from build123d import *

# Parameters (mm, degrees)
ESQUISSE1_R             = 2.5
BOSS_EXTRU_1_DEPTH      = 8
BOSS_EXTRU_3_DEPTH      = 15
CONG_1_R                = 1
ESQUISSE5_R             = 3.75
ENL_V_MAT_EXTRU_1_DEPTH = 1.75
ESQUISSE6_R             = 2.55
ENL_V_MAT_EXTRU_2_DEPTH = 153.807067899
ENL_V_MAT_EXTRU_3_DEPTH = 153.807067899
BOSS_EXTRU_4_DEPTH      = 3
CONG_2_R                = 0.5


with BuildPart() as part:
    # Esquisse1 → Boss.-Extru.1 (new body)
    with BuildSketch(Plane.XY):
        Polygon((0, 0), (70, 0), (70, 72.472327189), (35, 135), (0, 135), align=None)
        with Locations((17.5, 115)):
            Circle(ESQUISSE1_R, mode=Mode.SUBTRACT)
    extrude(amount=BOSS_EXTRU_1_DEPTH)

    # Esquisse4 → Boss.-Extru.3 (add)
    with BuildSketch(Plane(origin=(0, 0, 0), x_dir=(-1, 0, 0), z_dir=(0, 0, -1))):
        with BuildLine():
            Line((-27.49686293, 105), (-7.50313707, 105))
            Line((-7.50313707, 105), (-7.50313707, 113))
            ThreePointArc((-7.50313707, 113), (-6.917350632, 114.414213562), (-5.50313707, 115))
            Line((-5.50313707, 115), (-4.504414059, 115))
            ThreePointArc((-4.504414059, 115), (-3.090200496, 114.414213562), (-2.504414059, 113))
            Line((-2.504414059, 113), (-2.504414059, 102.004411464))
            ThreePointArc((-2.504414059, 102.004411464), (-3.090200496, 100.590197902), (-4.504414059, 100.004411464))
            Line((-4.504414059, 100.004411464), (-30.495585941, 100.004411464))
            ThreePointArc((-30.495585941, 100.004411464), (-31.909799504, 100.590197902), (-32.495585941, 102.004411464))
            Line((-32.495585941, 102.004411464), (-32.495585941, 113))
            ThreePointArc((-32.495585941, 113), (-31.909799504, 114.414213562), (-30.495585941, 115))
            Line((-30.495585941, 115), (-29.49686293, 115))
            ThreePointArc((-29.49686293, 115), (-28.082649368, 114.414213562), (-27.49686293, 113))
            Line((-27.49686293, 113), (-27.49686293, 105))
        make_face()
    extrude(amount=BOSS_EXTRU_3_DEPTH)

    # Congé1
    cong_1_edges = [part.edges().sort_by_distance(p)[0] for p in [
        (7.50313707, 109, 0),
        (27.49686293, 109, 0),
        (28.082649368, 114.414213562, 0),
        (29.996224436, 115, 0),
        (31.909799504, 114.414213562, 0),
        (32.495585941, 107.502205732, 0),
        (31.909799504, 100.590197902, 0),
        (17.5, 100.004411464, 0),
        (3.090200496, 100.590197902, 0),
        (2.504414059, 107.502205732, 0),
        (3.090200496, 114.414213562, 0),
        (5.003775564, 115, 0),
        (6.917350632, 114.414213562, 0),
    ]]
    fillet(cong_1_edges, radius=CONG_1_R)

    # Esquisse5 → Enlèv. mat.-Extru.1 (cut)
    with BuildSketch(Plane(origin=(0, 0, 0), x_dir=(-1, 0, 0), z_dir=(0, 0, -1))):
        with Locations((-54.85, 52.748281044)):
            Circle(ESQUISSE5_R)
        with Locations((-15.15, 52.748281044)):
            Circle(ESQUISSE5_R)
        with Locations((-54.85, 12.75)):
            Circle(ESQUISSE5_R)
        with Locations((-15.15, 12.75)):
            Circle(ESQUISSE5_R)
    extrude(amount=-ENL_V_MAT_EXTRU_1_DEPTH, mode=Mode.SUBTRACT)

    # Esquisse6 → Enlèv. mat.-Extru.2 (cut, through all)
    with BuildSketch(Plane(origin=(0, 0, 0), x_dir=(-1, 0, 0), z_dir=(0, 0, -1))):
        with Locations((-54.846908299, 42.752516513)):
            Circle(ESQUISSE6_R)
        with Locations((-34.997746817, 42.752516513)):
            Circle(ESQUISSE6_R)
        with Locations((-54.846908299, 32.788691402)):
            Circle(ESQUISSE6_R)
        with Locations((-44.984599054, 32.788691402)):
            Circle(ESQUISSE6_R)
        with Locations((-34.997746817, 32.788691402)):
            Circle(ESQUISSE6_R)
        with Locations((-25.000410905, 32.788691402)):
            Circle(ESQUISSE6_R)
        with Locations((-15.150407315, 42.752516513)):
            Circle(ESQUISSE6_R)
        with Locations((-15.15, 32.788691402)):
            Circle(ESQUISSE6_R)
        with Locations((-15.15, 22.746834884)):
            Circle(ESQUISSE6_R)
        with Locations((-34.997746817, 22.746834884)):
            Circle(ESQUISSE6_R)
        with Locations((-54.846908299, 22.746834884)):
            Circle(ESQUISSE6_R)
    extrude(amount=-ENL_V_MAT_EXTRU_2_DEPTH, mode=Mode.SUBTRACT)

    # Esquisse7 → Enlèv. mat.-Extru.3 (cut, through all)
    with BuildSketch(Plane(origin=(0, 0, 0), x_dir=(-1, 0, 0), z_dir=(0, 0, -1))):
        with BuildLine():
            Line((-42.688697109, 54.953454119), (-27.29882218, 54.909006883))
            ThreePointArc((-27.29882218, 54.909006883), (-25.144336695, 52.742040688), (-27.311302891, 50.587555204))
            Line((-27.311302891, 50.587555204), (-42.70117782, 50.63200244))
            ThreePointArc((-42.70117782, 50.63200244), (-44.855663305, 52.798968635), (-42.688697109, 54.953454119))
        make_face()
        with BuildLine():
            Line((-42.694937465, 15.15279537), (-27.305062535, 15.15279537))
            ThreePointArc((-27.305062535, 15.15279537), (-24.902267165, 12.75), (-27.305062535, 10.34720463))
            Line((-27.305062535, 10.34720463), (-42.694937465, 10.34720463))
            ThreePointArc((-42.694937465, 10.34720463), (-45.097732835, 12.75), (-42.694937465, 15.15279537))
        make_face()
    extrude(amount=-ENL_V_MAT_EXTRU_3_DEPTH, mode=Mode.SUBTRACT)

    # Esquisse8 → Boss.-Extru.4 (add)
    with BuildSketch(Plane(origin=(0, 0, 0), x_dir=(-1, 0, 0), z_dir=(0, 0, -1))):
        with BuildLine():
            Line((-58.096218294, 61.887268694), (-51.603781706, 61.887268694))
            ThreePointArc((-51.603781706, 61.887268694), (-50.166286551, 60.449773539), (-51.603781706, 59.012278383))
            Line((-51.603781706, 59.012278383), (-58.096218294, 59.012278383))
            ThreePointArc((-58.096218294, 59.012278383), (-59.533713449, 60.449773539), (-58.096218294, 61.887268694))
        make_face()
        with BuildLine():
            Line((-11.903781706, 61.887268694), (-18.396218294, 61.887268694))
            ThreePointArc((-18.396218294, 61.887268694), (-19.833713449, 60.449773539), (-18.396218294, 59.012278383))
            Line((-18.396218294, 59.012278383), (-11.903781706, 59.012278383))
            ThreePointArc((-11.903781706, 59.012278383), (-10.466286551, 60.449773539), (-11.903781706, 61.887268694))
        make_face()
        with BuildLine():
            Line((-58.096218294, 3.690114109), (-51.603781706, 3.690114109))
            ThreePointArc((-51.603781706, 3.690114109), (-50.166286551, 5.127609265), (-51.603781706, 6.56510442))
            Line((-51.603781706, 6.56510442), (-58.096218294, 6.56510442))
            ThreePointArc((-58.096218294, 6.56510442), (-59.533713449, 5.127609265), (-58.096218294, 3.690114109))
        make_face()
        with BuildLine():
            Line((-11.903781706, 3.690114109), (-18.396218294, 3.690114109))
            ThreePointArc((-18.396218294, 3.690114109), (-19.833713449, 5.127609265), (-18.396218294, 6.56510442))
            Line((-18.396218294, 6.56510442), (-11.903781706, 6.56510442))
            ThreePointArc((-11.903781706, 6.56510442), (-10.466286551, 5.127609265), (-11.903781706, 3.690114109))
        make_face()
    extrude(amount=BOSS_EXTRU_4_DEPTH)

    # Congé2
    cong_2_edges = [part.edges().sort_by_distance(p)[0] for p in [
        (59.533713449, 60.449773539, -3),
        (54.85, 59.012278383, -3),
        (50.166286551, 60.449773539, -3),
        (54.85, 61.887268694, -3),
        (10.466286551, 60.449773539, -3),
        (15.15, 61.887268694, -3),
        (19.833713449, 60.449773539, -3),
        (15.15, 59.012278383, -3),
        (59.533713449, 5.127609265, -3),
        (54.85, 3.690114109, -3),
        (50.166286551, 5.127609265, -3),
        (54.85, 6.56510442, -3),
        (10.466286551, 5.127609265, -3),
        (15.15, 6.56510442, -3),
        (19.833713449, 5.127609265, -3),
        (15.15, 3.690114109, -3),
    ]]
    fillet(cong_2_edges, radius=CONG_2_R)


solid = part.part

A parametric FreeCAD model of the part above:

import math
import FreeCAD as App
import Part
import Sketcher
Q = App.Units.Quantity


def edges_at(feature, points):
    """Names of the edges that pass closest to the given points."""
    edges = feature.Shape.Edges
    near = lambda p: min(range(len(edges)), key=lambda i: edges[i].distToShape(Part.Vertex(*p))[0])
    return sorted({f"Edge{near(p) + 1}" for p in points})


def add_polygon(sketch, points):
    """Adds a closed chain of lines whose ends are joined by coincident constraints."""
    first, n = sketch.GeometryCount, len(points)
    for a, b in zip(points, points[1:] + points[:1]):
        sketch.addGeometry(Part.LineSegment(App.Vector(*a, 0), App.Vector(*b, 0)), False)
    for i in range(n):
        sketch.addConstraint(Sketcher.Constraint("Coincident", first + i, 2, first + (i + 1) % n, 1))

doc = App.newDocument("Part")
body = doc.addObject("PartDesign::Body", "Body")

# Sketch on XY plane
sketch1 = body.newObject("Sketcher::SketchObject", "Sketch")
sketch1.AttachmentSupport = (doc.getObject("XY_Plane"), [""])
sketch1.MapMode = "FlatFace"
add_polygon(sketch1, [(0, 0), (70, 0), (70, 72.472327), (35, 135), (0, 135)])  # lines 0-4
sketch1.addGeometry(Part.Circle(App.Vector(17.5, 115, 0), App.Vector(0, 0, 1), 2.5), False)  # 5
sketch1.addConstraint([
    Sketcher.Constraint("Horizontal", 0),
    Sketcher.Constraint("Vertical", 1),
    Sketcher.Constraint("Horizontal", 3),
    Sketcher.Constraint("Vertical", 4),
    Sketcher.Constraint("Coincident", 4, 2, -1, 1),
    Sketcher.Constraint("Diameter", 5, Q("5 mm")),
    Sketcher.Constraint("DistanceX", 0, 1, 0, 2, Q("70 mm")),
    Sketcher.Constraint("DistanceX", 3, 2, 3, 1, Q("35 mm")),
    Sketcher.Constraint("DistanceY", 4, 2, 4, 1, Q("135 mm")),
    Sketcher.Constraint("DistanceY", -1, 1, 5, 3, Q("115 mm")),
    Sketcher.Constraint("DistanceX", -1, 1, 5, 3, Q("17.5 mm")),
    Sketcher.Constraint("Distance", 2, Q("71.65689 mm")),
])
pad1 = body.newObject("PartDesign::Pad", "Pad")
pad1.Profile = sketch1
pad1.Length = 8

# Sketch on XY plane
sketch2 = body.newObject("Sketcher::SketchObject", "Sketch001")
sketch2.AttachmentSupport = (doc.getObject("XY_Plane"), [""])
sketch2.MapMode = "FlatFace"
sketch2.addGeometry([
    Part.LineSegment(App.Vector(7.503137, 105, 0), App.Vector(27.496863, 105, 0)),  # 0
    Part.LineSegment(App.Vector(27.496863, 105, 0), App.Vector(27.496863, 113, 0)),  # 1
    Part.ArcOfCircle(Part.Circle(App.Vector(29.496863, 113, 0), App.Vector(0, 0, 1), 2), math.radians(90), math.radians(180)),  # 2
    Part.LineSegment(App.Vector(29.496863, 115, 0), App.Vector(30.495586, 115, 0)),  # 3
    Part.ArcOfCircle(Part.Circle(App.Vector(30.495586, 113, 0), App.Vector(0, 0, 1), 2), math.radians(0), math.radians(90)),  # 4
    Part.LineSegment(App.Vector(32.495586, 113, 0), App.Vector(32.495586, 102.004411, 0)),  # 5
    Part.ArcOfCircle(Part.Circle(App.Vector(30.495586, 102.004411, 0), App.Vector(0, 0, 1), 2), math.radians(-90), math.radians(0)),  # 6
    Part.LineSegment(App.Vector(30.495586, 100.004411, 0), App.Vector(4.504414, 100.004411, 0)),  # 7
    Part.ArcOfCircle(Part.Circle(App.Vector(4.504414, 102.004411, 0), App.Vector(0, 0, 1), 2), math.radians(180), math.radians(270)),  # 8
    Part.LineSegment(App.Vector(2.504414, 102.004411, 0), App.Vector(2.504414, 113, 0)),  # 9
    Part.ArcOfCircle(Part.Circle(App.Vector(4.504414, 113, 0), App.Vector(0, 0, 1), 2), math.radians(90), math.radians(180)),  # 10
    Part.LineSegment(App.Vector(4.504414, 115, 0), App.Vector(5.503137, 115, 0)),  # 11
    Part.ArcOfCircle(Part.Circle(App.Vector(5.503137, 113, 0), App.Vector(0, 0, 1), 2), math.radians(0), math.radians(90)),  # 12
    Part.LineSegment(App.Vector(7.503137, 113, 0), App.Vector(7.503137, 105, 0)),  # 13
], False)
sketch2.addConstraint([
    Sketcher.Constraint("Coincident", 0, 2, 1, 1),
    Sketcher.Constraint("Tangent", 1, 2, 2, 2),
    Sketcher.Constraint("Tangent", 2, 1, 3, 1),
    Sketcher.Constraint("Tangent", 3, 2, 4, 2),
    Sketcher.Constraint("Tangent", 4, 1, 5, 1),
    Sketcher.Constraint("Tangent", 5, 2, 6, 2),
    Sketcher.Constraint("Tangent", 6, 1, 7, 1),
    Sketcher.Constraint("Tangent", 7, 2, 8, 2),
    Sketcher.Constraint("Tangent", 8, 1, 9, 1),
    Sketcher.Constraint("Tangent", 9, 2, 10, 2),
    Sketcher.Constraint("Tangent", 10, 1, 11, 1),
    Sketcher.Constraint("Tangent", 11, 2, 12, 2),
    Sketcher.Constraint("Tangent", 12, 1, 13, 1),
    Sketcher.Constraint("Coincident", 13, 2, 0, 1),
    Sketcher.Constraint("Horizontal", 0),
    Sketcher.Constraint("Vertical", 1),
    Sketcher.Constraint("Horizontal", 3),
    Sketcher.Constraint("Vertical", 5),
    Sketcher.Constraint("Horizontal", 7),
    Sketcher.Constraint("Vertical", 9),
    Sketcher.Constraint("Horizontal", 11),
    Sketcher.Constraint("Vertical", 13),
    Sketcher.Constraint("Equal", 2, 4),
    Sketcher.Constraint("Equal", 4, 6),
    Sketcher.Constraint("Equal", 6, 8),
    Sketcher.Constraint("Equal", 8, 10),
    Sketcher.Constraint("Equal", 10, 12),
    Sketcher.Constraint("Horizontal", 4, 3, 10, 3),
    Sketcher.Constraint("Equal", 3, 11),
    Sketcher.Constraint("Radius", 2, Q("2 mm")),
    Sketcher.Constraint("DistanceY", 1, 1, 1, 2, Q("8 mm")),
    Sketcher.Constraint("DistanceY", -1, 1, 2, 3, Q("113 mm")),
    Sketcher.Constraint("DistanceX", 7, 2, 7, 1, Q("25.991172 mm")),
    Sketcher.Constraint("DistanceY", 5, 2, 5, 1, Q("10.995589 mm")),
    Sketcher.Constraint("DistanceX", 0, 1, 0, 2, Q("19.993726 mm")),
    Sketcher.Constraint("DistanceX", -1, 1, 2, 3, Q("29.496863 mm")),
])
pad2 = body.newObject("PartDesign::Pad", "Pad001")
pad2.Profile = sketch2
pad2.Length = 15
pad2.Reversed = True
doc.recompute()

fillet = body.newObject("PartDesign::Fillet", "Fillet")
fillet.Base = (pad2, edges_at(pad2, [
    (7.503, 109, 0),
    (27.497, 109, 0),
    (28.083, 114.414, 0),
    (29.996, 115, 0),
    (31.91, 114.414, 0),
    (32.496, 107.502, 0),
    (31.91, 100.59, 0),
    (17.5, 100.004, 0),
    (3.09, 100.59, 0),
    (2.504, 107.502, 0),
    (3.09, 114.414, 0),
    (5.004, 115, 0),
    (6.917, 114.414, 0),
]))
fillet.Radius = 1

# Sketch on XY plane
sketch3 = body.newObject("Sketcher::SketchObject", "Sketch002")
sketch3.AttachmentSupport = (doc.getObject("XY_Plane"), [""])
sketch3.MapMode = "FlatFace"
sketch3.addGeometry([
    Part.Circle(App.Vector(54.85, 52.748281, 0), App.Vector(0, 0, 1), 3.75),
    Part.Circle(App.Vector(15.15, 52.748281, 0), App.Vector(0, 0, 1), 3.75),
    Part.Circle(App.Vector(54.85, 12.75, 0), App.Vector(0, 0, 1), 3.75),
    Part.Circle(App.Vector(15.15, 12.75, 0), App.Vector(0, 0, 1), 3.75),
], False)
sketch3.addConstraint([
    Sketcher.Constraint("Equal", 0, 1),
    Sketcher.Constraint("Equal", 1, 2),
    Sketcher.Constraint("Equal", 2, 3),
    Sketcher.Constraint("Horizontal", 0, 3, 1, 3),
    Sketcher.Constraint("Horizontal", 2, 3, 3, 3),
    Sketcher.Constraint("Vertical", 0, 3, 2, 3),
    Sketcher.Constraint("Vertical", 1, 3, 3, 3),
    Sketcher.Constraint("Diameter", 0, Q("7.5 mm")),
    Sketcher.Constraint("DistanceX", 1, 3, 0, 3, Q("39.7 mm")),
    Sketcher.Constraint("DistanceX", -1, 1, 0, 3, Q("54.85 mm")),
    Sketcher.Constraint("DistanceY", -1, 1, 2, 3, Q("12.75 mm")),
    Sketcher.Constraint("DistanceY", -1, 1, 0, 3, Q("52.748281 mm")),
])
pocket1 = body.newObject("PartDesign::Pocket", "Pocket")
pocket1.Profile = sketch3
pocket1.Length = 1.75
pocket1.Reversed = True

# Sketch on XY plane
sketch4 = body.newObject("Sketcher::SketchObject", "Sketch003")
sketch4.AttachmentSupport = (doc.getObject("XY_Plane"), [""])
sketch4.MapMode = "FlatFace"
sketch4.addGeometry([
    Part.Circle(App.Vector(54.846908, 42.752517, 0), App.Vector(0, 0, 1), 2.55),  # 0
    Part.Circle(App.Vector(34.997747, 42.752517, 0), App.Vector(0, 0, 1), 2.55),  # 1
    Part.Circle(App.Vector(54.846908, 32.788691, 0), App.Vector(0, 0, 1), 2.55),  # 2
    Part.Circle(App.Vector(44.984599, 32.788691, 0), App.Vector(0, 0, 1), 2.55),  # 3
    Part.Circle(App.Vector(34.997747, 32.788691, 0), App.Vector(0, 0, 1), 2.55),  # 4
    Part.Circle(App.Vector(25.000411, 32.788691, 0), App.Vector(0, 0, 1), 2.55),  # 5
    Part.Circle(App.Vector(15.150407, 42.752517, 0), App.Vector(0, 0, 1), 2.55),  # 6
    Part.Circle(App.Vector(15.15, 32.788691, 0), App.Vector(0, 0, 1), 2.55),  # 7
    Part.Circle(App.Vector(15.15, 22.746835, 0), App.Vector(0, 0, 1), 2.55),  # 8
    Part.Circle(App.Vector(34.997747, 22.746835, 0), App.Vector(0, 0, 1), 2.55),  # 9
    Part.Circle(App.Vector(54.846908, 22.746835, 0), App.Vector(0, 0, 1), 2.55),  # 10
], False)
sketch4.addConstraint([
    Sketcher.Constraint("Equal", 0, 1),
    Sketcher.Constraint("Equal", 1, 2),
    Sketcher.Constraint("Equal", 2, 3),
    Sketcher.Constraint("Equal", 3, 4),
    Sketcher.Constraint("Equal", 4, 5),
    Sketcher.Constraint("Equal", 5, 6),
    Sketcher.Constraint("Equal", 6, 7),
    Sketcher.Constraint("Equal", 7, 8),
    Sketcher.Constraint("Equal", 8, 9),
    Sketcher.Constraint("Equal", 9, 10),
    Sketcher.Constraint("Horizontal", 0, 3, 1, 3),
    Sketcher.Constraint("Horizontal", 2, 3, 3, 3),
    Sketcher.Constraint("Horizontal", 3, 3, 4, 3),
    Sketcher.Constraint("Horizontal", 4, 3, 5, 3),
    Sketcher.Constraint("Horizontal", 1, 3, 6, 3),
    Sketcher.Constraint("Horizontal", 5, 3, 7, 3),
    Sketcher.Constraint("Horizontal", 8, 3, 9, 3),
    Sketcher.Constraint("Horizontal", 9, 3, 10, 3),
    Sketcher.Constraint("Vertical", 0, 3, 2, 3),
    Sketcher.Constraint("Vertical", 1, 3, 4, 3),
    Sketcher.Constraint("Vertical", 7, 3, 8, 3),
    Sketcher.Constraint("Vertical", 4, 3, 9, 3),
    Sketcher.Constraint("Vertical", 2, 3, 10, 3),
    Sketcher.Constraint("Diameter", 0, Q("5.1 mm")),
    Sketcher.Constraint("DistanceX", -1, 1, 7, 3, Q("15.15 mm")),
    Sketcher.Constraint("DistanceX", -1, 1, 3, 3, Q("44.984599 mm")),
    Sketcher.Constraint("DistanceX", 6, 3, 0, 3, Q("39.696501 mm")),
    Sketcher.Constraint("DistanceX", -1, 1, 0, 3, Q("54.846908 mm")),
    Sketcher.Constraint("DistanceY", -1, 1, 2, 3, Q("32.788691 mm")),
    Sketcher.Constraint("DistanceX", -1, 1, 5, 3, Q("25.000411 mm")),
    Sketcher.Constraint("DistanceX", 1, 3, 0, 3, Q("19.849161 mm")),
    Sketcher.Constraint("DistanceY", 8, 3, 6, 3, Q("20.005682 mm")),
    Sketcher.Constraint("DistanceY", -1, 1, 0, 3, Q("42.752517 mm")),
])
pocket2 = body.newObject("PartDesign::Pocket", "Pocket001")
pocket2.Profile = sketch4
pocket2.Type = "ThroughAll"
pocket2.Reversed = True

# Sketch on XY plane
sketch5 = body.newObject("Sketcher::SketchObject", "Sketch004")
sketch5.AttachmentSupport = (doc.getObject("XY_Plane"), [""])
sketch5.MapMode = "FlatFace"
sketch5.addGeometry([
    Part.LineSegment(App.Vector(27.298822, 54.909007, 0), App.Vector(42.688697, 54.953454, 0)),  # 0
    Part.ArcOfCircle(Part.Circle(App.Vector(42.694937, 52.792728, 0), App.Vector(0, 0, 1), 2.160735), math.radians(-89.834526), math.radians(90.165475)),  # 1
    Part.LineSegment(App.Vector(42.701178, 50.632002, 0), App.Vector(27.311303, 50.587555, 0)),  # 2
    Part.ArcOfCircle(Part.Circle(App.Vector(27.305063, 52.748281, 0), App.Vector(0, 0, 1), 2.160735), math.radians(90.165474), math.radians(270.165475)),  # 3
    Part.LineSegment(App.Vector(27.305063, 15.152795, 0), App.Vector(42.694937, 15.152795, 0)),  # 4
    Part.ArcOfCircle(Part.Circle(App.Vector(42.694937, 12.75, 0), App.Vector(0, 0, 1), 2.402795), math.radians(-90), math.radians(90)),  # 5
    Part.LineSegment(App.Vector(42.694937, 10.347205, 0), App.Vector(27.305063, 10.347205, 0)),  # 6
    Part.ArcOfCircle(Part.Circle(App.Vector(27.305063, 12.75, 0), App.Vector(0, 0, 1), 2.402795), math.radians(90), math.radians(270)),  # 7
], False)
sketch5.addConstraint([
    Sketcher.Constraint("Tangent", 0, 2, 1, 2),
    Sketcher.Constraint("Tangent", 1, 1, 2, 1),
    Sketcher.Constraint("Tangent", 2, 2, 3, 2),
    Sketcher.Constraint("Tangent", 3, 1, 0, 1),
    Sketcher.Constraint("Tangent", 4, 2, 5, 2),
    Sketcher.Constraint("Tangent", 5, 1, 6, 1),
    Sketcher.Constraint("Tangent", 6, 2, 7, 2),
    Sketcher.Constraint("Tangent", 7, 1, 4, 1),
    Sketcher.Constraint("Horizontal", 4),
    Sketcher.Constraint("Horizontal", 6),
    Sketcher.Constraint("Equal", 1, 3),
    Sketcher.Constraint("Vertical", 1, 3, 5, 3),
    Sketcher.Constraint("Vertical", 3, 3, 7, 3),
    Sketcher.Constraint("DistanceY", -1, 1, 5, 3, Q("12.75 mm")),
    Sketcher.Constraint("Radius", 1, Q("2.160735 mm")),
    Sketcher.Constraint("Radius", 5, Q("2.402795 mm")),
    Sketcher.Constraint("DistanceY", 2, 2, 0, 2, Q("4.365899 mm")),
    Sketcher.Constraint("Distance", 0, Q("15.389939 mm")),
    Sketcher.Constraint("DistanceY", -1, 1, 1, 3, Q("52.792728 mm")),
    Sketcher.Constraint("DistanceX", -1, 1, 1, 3, Q("42.694937 mm")),
])
pocket3 = body.newObject("PartDesign::Pocket", "Pocket002")
pocket3.Profile = sketch5
pocket3.Type = "ThroughAll"
pocket3.Reversed = True

# Sketch on XY plane
sketch6 = body.newObject("Sketcher::SketchObject", "Sketch005")
sketch6.AttachmentSupport = (doc.getObject("XY_Plane"), [""])
sketch6.MapMode = "FlatFace"
sketch6.addGeometry([
    Part.LineSegment(App.Vector(51.603782, 61.887269, 0), App.Vector(58.096218, 61.887269, 0)),  # 0
    Part.ArcOfCircle(Part.Circle(App.Vector(58.096218, 60.449774, 0), App.Vector(0, 0, 1), 1.437495), math.radians(-90), math.radians(90)),  # 1
    Part.LineSegment(App.Vector(58.096218, 59.012278, 0), App.Vector(51.603782, 59.012278, 0)),  # 2
    Part.ArcOfCircle(Part.Circle(App.Vector(51.603782, 60.449774, 0), App.Vector(0, 0, 1), 1.437495), math.radians(90), math.radians(270)),  # 3
    Part.LineSegment(App.Vector(11.903782, 61.887269, 0), App.Vector(18.396218, 61.887269, 0)),  # 4
    Part.ArcOfCircle(Part.Circle(App.Vector(18.396218, 60.449774, 0), App.Vector(0, 0, 1), 1.437495), math.radians(-90), math.radians(90)),  # 5
    Part.LineSegment(App.Vector(18.396218, 59.012278, 0), App.Vector(11.903782, 59.012278, 0)),  # 6
    Part.ArcOfCircle(Part.Circle(App.Vector(11.903782, 60.449774, 0), App.Vector(0, 0, 1), 1.437495), math.radians(90), math.radians(270)),  # 7
    Part.LineSegment(App.Vector(58.096218, 3.690114, 0), App.Vector(51.603782, 3.690114, 0)),  # 8
    Part.ArcOfCircle(Part.Circle(App.Vector(51.603782, 5.127609, 0), App.Vector(0, 0, 1), 1.437495), math.radians(90), math.radians(270)),  # 9
    Part.LineSegment(App.Vector(51.603782, 6.565104, 0), App.Vector(58.096218, 6.565104, 0)),  # 10
    Part.ArcOfCircle(Part.Circle(App.Vector(58.096218, 5.127609, 0), App.Vector(0, 0, 1), 1.437495), math.radians(-90), math.radians(90)),  # 11
    Part.LineSegment(App.Vector(18.396218, 3.690114, 0), App.Vector(11.903782, 3.690114, 0)),  # 12
    Part.ArcOfCircle(Part.Circle(App.Vector(11.903782, 5.127609, 0), App.Vector(0, 0, 1), 1.437495), math.radians(90), math.radians(270)),  # 13
    Part.LineSegment(App.Vector(11.903782, 6.565104, 0), App.Vector(18.396218, 6.565104, 0)),  # 14
    Part.ArcOfCircle(Part.Circle(App.Vector(18.396218, 5.127609, 0), App.Vector(0, 0, 1), 1.437495), math.radians(-90), math.radians(90)),  # 15
], False)
sketch6.addConstraint([
    Sketcher.Constraint("Tangent", 0, 2, 1, 2),
    Sketcher.Constraint("Tangent", 1, 1, 2, 1),
    Sketcher.Constraint("Tangent", 2, 2, 3, 2),
    Sketcher.Constraint("Tangent", 3, 1, 0, 1),
    Sketcher.Constraint("Tangent", 4, 2, 5, 2),
    Sketcher.Constraint("Tangent", 5, 1, 6, 1),
    Sketcher.Constraint("Tangent", 6, 2, 7, 2),
    Sketcher.Constraint("Tangent", 7, 1, 4, 1),
    Sketcher.Constraint("Tangent", 8, 2, 9, 2),
    Sketcher.Constraint("Tangent", 9, 1, 10, 1),
    Sketcher.Constraint("Tangent", 10, 2, 11, 2),
    Sketcher.Constraint("Tangent", 11, 1, 8, 1),
    Sketcher.Constraint("Tangent", 12, 2, 13, 2),
    Sketcher.Constraint("Tangent", 13, 1, 14, 1),
    Sketcher.Constraint("Tangent", 14, 2, 15, 2),
    Sketcher.Constraint("Tangent", 15, 1, 12, 1),
    Sketcher.Constraint("Horizontal", 0),
    Sketcher.Constraint("Horizontal", 2),
    Sketcher.Constraint("Horizontal", 4),
    Sketcher.Constraint("Horizontal", 6),
    Sketcher.Constraint("Horizontal", 8),
    Sketcher.Constraint("Horizontal", 10),
    Sketcher.Constraint("Horizontal", 12),
    Sketcher.Constraint("Horizontal", 14),
    Sketcher.Constraint("Equal", 3, 5),
    Sketcher.Constraint("Equal", 7, 9),
    Sketcher.Constraint("Equal", 11, 13),
    Sketcher.Constraint("Horizontal", 3, 3, 5, 3),
    Sketcher.Constraint("Horizontal", 11, 3, 13, 3),
    Sketcher.Constraint("Vertical", 3, 3, 9, 3),
    Sketcher.Constraint("Vertical", 1, 3, 11, 3),
    Sketcher.Constraint("Vertical", 7, 3, 13, 3),
    Sketcher.Constraint("Vertical", 5, 3, 15, 3),
    Sketcher.Constraint("Equal", 2, 4),
    Sketcher.Constraint("DistanceX", 5, 3, 1, 3, Q("39.7 mm")),
    Sketcher.Constraint("Radius", 1, Q("1.437495 mm")),
    Sketcher.Constraint("DistanceX", 0, 1, 0, 2, Q("6.492437 mm")),
    Sketcher.Constraint("DistanceX", -1, 1, 1, 3, Q("58.096218 mm")),
    Sketcher.Constraint("DistanceY", -1, 1, 9, 3, Q("5.127609 mm")),
    Sketcher.Constraint("DistanceY", -1, 1, 0, 2, Q("61.887269 mm")),
])
pad3 = body.newObject("PartDesign::Pad", "Pad002")
pad3.Profile = sketch6
pad3.Length = 3
pad3.Reversed = True
doc.recompute()

fillet2 = body.newObject("PartDesign::Fillet", "Fillet001")
fillet2.Base = (pad3, edges_at(pad3, [
    (59.534, 60.45, -3),
    (54.85, 59.012, -3),
    (50.166, 60.45, -3),
    (54.85, 61.887, -3),
    (10.466, 60.45, -3),
    (15.15, 61.887, -3),
    (19.834, 60.45, -3),
    (15.15, 59.012, -3),
    (59.534, 5.128, -3),
    (54.85, 3.69, -3),
    (50.166, 5.128, -3),
    (54.85, 6.565, -3),
    (10.466, 5.128, -3),
    (15.15, 6.565, -3),
    (19.834, 5.128, -3),
    (15.15, 3.69, -3),
]))
fillet2.Radius = 0.5

doc.recompute()
